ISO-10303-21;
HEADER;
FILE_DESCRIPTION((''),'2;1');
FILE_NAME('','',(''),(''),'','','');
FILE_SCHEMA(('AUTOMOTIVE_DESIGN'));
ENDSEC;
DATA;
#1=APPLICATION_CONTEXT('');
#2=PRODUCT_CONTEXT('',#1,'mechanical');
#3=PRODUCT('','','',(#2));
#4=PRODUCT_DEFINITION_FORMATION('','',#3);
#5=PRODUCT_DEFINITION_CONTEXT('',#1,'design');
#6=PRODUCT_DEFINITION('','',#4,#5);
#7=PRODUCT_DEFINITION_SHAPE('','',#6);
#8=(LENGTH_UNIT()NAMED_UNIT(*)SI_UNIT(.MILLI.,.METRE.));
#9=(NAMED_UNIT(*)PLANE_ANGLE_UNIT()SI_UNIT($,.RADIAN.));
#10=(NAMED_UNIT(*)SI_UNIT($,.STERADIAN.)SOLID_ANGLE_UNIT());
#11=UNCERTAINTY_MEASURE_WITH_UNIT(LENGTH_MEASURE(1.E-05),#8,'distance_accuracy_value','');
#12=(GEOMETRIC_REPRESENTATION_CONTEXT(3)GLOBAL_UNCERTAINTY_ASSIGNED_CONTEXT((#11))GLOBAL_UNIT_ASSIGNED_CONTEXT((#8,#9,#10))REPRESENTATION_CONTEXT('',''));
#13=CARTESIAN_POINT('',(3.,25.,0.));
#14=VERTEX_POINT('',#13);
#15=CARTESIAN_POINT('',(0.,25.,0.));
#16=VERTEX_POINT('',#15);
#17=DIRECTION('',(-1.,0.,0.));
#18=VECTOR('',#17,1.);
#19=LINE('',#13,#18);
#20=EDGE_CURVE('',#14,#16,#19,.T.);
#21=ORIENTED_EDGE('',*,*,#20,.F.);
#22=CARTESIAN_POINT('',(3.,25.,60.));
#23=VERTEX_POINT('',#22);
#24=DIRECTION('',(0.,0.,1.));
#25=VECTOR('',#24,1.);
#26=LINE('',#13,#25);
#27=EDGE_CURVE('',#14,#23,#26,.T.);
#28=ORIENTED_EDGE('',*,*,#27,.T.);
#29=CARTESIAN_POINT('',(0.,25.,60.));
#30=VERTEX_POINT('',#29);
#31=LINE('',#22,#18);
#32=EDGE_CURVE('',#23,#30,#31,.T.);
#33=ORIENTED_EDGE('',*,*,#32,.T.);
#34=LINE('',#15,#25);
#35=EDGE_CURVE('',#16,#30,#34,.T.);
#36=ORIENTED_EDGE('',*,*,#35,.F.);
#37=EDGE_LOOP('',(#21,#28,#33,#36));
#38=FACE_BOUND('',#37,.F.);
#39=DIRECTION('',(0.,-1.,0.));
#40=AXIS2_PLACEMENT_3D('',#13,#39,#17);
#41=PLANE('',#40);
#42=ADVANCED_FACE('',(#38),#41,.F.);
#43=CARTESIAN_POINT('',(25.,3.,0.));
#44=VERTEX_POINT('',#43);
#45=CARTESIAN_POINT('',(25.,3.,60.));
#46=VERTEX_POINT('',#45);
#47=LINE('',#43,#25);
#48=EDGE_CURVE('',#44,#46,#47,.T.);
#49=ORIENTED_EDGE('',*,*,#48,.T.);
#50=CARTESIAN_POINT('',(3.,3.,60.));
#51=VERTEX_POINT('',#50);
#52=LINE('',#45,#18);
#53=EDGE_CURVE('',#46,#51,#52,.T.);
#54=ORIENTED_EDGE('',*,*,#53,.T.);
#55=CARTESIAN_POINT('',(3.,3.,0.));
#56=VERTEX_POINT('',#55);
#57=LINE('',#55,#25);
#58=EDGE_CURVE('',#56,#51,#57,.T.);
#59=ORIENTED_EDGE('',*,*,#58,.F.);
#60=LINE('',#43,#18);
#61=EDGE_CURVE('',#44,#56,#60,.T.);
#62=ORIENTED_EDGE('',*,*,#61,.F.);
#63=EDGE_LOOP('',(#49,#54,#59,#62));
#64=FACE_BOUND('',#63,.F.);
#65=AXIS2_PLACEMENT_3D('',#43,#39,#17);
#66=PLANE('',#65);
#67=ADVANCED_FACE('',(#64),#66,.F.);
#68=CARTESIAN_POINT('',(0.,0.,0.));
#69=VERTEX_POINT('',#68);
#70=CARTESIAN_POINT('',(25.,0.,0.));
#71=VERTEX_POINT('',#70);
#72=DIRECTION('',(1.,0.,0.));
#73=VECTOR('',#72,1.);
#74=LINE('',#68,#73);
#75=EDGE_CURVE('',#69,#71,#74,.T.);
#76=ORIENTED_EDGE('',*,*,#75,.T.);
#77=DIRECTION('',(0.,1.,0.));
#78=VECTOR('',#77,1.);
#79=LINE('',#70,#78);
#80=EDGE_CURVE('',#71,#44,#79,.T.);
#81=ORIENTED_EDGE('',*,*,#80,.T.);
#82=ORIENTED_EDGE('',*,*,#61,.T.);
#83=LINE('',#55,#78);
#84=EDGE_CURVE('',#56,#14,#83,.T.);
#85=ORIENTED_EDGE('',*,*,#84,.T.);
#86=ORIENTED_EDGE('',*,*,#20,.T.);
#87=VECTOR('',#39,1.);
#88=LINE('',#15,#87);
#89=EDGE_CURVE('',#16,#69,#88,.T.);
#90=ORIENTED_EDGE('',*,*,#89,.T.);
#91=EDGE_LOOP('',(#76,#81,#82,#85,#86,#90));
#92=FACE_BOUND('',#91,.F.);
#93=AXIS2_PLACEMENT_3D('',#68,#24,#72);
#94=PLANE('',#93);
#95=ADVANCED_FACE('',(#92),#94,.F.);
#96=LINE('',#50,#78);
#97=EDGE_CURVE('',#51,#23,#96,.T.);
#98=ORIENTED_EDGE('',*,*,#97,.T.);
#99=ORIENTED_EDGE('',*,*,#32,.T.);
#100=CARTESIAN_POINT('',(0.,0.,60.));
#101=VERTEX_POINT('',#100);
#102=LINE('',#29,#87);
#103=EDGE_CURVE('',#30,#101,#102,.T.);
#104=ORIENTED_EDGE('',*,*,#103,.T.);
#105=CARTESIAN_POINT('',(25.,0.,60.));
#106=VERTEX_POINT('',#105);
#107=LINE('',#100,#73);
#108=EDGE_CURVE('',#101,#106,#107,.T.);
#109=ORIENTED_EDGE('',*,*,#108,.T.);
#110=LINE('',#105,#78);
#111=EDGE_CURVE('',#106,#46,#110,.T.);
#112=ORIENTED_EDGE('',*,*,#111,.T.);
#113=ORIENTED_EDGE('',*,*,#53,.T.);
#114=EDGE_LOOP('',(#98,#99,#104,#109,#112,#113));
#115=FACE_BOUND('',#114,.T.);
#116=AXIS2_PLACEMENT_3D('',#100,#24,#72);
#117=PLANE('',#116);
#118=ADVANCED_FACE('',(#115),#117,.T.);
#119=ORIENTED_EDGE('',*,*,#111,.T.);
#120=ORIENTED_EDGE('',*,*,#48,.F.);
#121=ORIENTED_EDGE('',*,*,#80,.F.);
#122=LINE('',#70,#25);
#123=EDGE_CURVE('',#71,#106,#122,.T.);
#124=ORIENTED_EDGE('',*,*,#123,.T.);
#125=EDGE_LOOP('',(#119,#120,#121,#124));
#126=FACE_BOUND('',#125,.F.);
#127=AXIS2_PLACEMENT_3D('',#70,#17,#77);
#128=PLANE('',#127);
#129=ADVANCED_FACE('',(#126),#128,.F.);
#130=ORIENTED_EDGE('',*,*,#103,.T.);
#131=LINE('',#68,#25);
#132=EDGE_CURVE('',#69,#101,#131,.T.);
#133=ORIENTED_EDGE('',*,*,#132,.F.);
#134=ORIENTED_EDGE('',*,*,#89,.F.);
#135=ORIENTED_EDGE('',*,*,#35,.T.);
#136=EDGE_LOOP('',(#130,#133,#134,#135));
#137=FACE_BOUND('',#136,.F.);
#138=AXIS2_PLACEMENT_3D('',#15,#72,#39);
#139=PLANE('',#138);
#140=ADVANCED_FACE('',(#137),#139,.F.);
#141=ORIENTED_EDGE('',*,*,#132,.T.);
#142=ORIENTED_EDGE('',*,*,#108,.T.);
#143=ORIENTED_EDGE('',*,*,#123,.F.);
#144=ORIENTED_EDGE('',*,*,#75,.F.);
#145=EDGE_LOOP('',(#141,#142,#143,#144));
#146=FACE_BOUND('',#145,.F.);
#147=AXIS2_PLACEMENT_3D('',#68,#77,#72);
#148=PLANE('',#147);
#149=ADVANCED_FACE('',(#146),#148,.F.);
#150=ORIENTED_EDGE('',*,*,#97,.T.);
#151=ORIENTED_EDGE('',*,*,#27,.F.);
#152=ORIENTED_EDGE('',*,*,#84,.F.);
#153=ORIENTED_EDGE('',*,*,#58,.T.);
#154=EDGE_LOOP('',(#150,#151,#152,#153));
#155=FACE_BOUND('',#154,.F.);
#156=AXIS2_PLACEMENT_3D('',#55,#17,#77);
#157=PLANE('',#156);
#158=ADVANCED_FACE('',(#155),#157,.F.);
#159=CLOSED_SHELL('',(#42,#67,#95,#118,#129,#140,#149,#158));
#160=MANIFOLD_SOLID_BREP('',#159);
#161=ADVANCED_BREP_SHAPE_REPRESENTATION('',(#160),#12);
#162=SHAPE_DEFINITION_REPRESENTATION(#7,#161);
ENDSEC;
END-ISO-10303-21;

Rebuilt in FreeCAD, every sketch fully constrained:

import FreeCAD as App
import Part
import Sketcher
Q = App.Units.Quantity

doc = App.newDocument("Part")
body = doc.addObject("PartDesign::Body", "Body")

sketch1 = doc.addObject("Sketcher::SketchObject", "Sketch")
body.addObject(sketch1)
sketch1.AttachmentSupport = (doc.XY_Plane, [""])
sketch1.MapMode = "FlatFace"
sketch1.addGeometry([
    Part.LineSegment(App.Vector(0, 25, 0), App.Vector(0, 0, 0)),
    Part.LineSegment(App.Vector(0, 0, 0), App.Vector(25, 0, 0)),
    Part.LineSegment(App.Vector(25, 0, 0), App.Vector(25, 3, 0)),
    Part.LineSegment(App.Vector(25, 3, 0), App.Vector(3, 3, 0)),
    Part.LineSegment(App.Vector(3, 3, 0), App.Vector(3, 25, 0)),
    Part.LineSegment(App.Vector(3, 25, 0), App.Vector(0, 25, 0)),
], False)
sketch1.addConstraint([
    Sketcher.Constraint("Coincident", 0, 2, 1, 1),
    Sketcher.Constraint("Coincident", 1, 2, 2, 1),
    Sketcher.Constraint("Coincident", 2, 2, 3, 1),
    Sketcher.Constraint("Coincident", 3, 2, 4, 1),
    Sketcher.Constraint("Coincident", 4, 2, 5, 1),
    Sketcher.Constraint("Coincident", 5, 2, 0, 1),
    Sketcher.Constraint("Vertical", 0),
    Sketcher.Constraint("Horizontal", 1),
    Sketcher.Constraint("Vertical", 2),
    Sketcher.Constraint("Horizontal", 3),
    Sketcher.Constraint("Vertical", 4),
    Sketcher.Constraint("Horizontal", 5),
    Sketcher.Constraint("Coincident", 0, 2, -1, 1),
    Sketcher.Constraint("Equal", 1, 0),
    Sketcher.Constraint("Equal", 5, 2),
    Sketcher.Constraint("DistanceX", 1, 1, 1, 2, Q("25 mm")),
    Sketcher.Constraint("DistanceX", 3, 2, 3, 1, Q("22 mm")),
])
pad1 = doc.addObject("PartDesign::Pad", "Pad")
body.addObject(pad1)
pad1.Profile = sketch1
pad1.Length = 60

doc.recompute()
